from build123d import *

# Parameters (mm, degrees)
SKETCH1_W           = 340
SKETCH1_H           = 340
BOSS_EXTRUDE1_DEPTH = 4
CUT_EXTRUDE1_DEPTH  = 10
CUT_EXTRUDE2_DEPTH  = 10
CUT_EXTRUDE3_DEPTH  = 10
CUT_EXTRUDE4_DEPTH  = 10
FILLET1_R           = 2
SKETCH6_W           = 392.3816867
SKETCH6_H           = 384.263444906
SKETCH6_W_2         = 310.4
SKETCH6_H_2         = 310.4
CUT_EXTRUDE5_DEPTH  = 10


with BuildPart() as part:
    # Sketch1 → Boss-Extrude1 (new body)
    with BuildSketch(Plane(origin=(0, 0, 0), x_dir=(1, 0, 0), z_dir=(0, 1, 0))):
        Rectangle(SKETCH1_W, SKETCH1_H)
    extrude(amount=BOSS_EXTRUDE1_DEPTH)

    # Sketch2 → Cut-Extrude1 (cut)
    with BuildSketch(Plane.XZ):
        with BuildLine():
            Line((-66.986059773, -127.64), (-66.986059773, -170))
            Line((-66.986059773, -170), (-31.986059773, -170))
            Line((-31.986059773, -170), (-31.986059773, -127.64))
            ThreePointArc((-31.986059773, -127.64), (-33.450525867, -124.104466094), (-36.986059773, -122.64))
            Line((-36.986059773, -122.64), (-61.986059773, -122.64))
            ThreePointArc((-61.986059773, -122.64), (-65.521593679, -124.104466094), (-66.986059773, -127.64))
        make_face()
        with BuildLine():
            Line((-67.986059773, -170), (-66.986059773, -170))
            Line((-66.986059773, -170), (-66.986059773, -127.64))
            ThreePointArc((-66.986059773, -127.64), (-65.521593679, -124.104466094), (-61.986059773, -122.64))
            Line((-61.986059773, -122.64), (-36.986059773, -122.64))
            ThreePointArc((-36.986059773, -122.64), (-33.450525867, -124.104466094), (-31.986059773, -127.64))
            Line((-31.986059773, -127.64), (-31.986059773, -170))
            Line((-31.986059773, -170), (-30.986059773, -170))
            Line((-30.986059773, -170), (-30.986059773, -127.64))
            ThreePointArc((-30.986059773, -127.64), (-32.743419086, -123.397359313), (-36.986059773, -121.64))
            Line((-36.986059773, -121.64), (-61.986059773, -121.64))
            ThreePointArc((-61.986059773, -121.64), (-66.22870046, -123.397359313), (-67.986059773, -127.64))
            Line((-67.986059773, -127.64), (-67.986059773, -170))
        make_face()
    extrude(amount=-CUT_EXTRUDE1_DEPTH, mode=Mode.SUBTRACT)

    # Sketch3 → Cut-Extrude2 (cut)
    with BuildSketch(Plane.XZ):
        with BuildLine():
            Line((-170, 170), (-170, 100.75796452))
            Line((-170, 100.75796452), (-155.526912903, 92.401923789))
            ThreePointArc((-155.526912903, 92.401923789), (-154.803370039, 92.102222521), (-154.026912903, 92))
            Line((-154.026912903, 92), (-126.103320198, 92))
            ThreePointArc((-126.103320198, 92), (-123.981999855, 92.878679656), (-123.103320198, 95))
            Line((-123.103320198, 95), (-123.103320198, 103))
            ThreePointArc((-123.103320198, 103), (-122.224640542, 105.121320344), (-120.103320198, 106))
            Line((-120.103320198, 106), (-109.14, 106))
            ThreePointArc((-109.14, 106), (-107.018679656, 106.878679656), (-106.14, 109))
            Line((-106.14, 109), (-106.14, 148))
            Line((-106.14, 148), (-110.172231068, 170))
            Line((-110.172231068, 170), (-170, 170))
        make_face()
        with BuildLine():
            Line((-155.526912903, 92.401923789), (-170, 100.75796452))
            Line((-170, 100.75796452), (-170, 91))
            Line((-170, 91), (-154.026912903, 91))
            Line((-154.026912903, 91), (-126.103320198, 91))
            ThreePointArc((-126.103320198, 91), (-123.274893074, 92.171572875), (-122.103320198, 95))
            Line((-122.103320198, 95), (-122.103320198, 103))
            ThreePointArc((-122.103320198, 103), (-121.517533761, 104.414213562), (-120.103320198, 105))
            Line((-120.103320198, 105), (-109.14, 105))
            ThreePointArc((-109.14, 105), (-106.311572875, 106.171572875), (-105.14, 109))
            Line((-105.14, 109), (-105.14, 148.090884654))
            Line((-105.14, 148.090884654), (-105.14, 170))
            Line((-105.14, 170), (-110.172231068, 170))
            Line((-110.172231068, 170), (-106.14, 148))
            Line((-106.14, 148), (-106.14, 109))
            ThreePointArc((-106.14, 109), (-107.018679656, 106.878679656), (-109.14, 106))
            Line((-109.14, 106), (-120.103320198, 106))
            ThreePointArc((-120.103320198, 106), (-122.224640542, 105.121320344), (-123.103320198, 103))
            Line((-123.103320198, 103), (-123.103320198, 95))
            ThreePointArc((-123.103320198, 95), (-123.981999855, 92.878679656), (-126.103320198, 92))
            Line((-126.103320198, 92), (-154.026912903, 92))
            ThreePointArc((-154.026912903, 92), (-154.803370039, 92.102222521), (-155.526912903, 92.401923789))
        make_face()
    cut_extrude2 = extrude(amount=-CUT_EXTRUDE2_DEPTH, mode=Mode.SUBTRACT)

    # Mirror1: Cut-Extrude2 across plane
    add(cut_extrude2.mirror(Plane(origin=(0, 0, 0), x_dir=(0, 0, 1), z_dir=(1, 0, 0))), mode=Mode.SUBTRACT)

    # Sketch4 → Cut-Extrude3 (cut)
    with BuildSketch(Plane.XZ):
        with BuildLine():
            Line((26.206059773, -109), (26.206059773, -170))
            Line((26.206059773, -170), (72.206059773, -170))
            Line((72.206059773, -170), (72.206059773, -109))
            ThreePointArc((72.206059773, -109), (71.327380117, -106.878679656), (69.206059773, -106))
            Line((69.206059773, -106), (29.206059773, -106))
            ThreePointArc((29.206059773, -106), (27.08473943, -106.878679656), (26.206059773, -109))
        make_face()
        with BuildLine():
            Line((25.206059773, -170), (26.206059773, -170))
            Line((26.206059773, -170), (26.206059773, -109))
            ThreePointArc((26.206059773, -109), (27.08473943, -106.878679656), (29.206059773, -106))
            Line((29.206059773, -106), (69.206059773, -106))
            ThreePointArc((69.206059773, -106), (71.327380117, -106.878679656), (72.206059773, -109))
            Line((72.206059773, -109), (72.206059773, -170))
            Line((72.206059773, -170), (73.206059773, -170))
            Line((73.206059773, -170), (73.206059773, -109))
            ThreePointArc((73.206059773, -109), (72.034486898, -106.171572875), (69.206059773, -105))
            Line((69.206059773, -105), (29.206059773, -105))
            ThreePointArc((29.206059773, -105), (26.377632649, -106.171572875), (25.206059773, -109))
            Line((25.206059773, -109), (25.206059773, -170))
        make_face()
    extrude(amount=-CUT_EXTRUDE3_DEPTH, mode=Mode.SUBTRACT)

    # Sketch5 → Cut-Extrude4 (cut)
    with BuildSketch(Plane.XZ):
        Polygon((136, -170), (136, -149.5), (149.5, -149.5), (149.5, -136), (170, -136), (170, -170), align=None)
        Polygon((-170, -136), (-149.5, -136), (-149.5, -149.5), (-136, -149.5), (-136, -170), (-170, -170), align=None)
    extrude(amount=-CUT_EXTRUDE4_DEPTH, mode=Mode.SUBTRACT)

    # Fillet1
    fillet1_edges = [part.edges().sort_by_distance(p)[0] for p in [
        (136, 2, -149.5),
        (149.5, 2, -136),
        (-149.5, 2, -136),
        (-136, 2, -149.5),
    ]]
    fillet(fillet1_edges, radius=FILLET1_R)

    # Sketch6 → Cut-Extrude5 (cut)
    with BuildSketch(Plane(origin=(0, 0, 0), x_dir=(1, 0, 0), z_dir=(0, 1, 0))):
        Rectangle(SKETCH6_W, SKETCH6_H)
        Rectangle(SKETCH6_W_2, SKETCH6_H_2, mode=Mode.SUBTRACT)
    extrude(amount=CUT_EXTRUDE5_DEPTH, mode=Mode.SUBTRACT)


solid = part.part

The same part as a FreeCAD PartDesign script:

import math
import FreeCAD as App
import Part
import Sketcher
Q = App.Units.Quantity


def edges_at(feature, points):
    """Names of the edges that pass closest to the given points."""
    edges = feature.Shape.Edges
    near = lambda p: min(range(len(edges)), key=lambda i: edges[i].distToShape(Part.Vertex(*p))[0])
    return sorted({f"Edge{near(p) + 1}" for p in points})

doc = App.newDocument("Part")
body = doc.addObject("PartDesign::Body", "Body")

# Sketch on XZ plane
sketch1 = doc.addObject("Sketcher::SketchObject", "Sketch")
body.addObject(sketch1)
sketch1.AttachmentSupport = (doc.XZ_Plane, [""])
sketch1.MapMode = "FlatFace"
sketch1.addGeometry(Part.LineSegment(App.Vector(-170, -170, 0), App.Vector(-170, 170, 0)), False)
sketch1.addGeometry(Part.LineSegment(App.Vector(-170, 170, 0), App.Vector(170, 170, 0)), False)
sketch1.addGeometry(Part.LineSegment(App.Vector(170, 170, 0), App.Vector(170, -170, 0)), False)
sketch1.addGeometry(Part.LineSegment(App.Vector(170, -170, 0), App.Vector(-170, -170, 0)), False)
sketch1.addConstraint(Sketcher.Constraint("Coincident", 0, 2, 1, 1))
sketch1.addConstraint(Sketcher.Constraint("Coincident", 1, 2, 2, 1))
sketch1.addConstraint(Sketcher.Constraint("Coincident", 2, 2, 3, 1))
sketch1.addConstraint(Sketcher.Constraint("Coincident", 3, 2, 0, 1))
sketch1.addConstraint(Sketcher.Constraint("Vertical", 0))
sketch1.addConstraint(Sketcher.Constraint("Horizontal", 1))
sketch1.addConstraint(Sketcher.Constraint("Vertical", 2))
sketch1.addConstraint(Sketcher.Constraint("Horizontal", 3))
sketch1.addConstraint(Sketcher.Constraint("Symmetric", 0, 2, 2, 2, -1, 1))
sketch1.addConstraint(Sketcher.Constraint("Equal", 3, 0))
sketch1.addConstraint(Sketcher.Constraint("DistanceX", 1, 1, 1, 2, Q("340 mm")))
pad1 = doc.addObject("PartDesign::Pad", "Pad")
body.addObject(pad1)
pad1.Profile = sketch1
pad1.Length = 4
pad1.Reversed = True

# Sketch on XZ plane
sketch2 = doc.addObject("Sketcher::SketchObject", "Sketch001")
body.addObject(sketch2)
sketch2.AttachmentSupport = (doc.XZ_Plane, [""])
sketch2.MapMode = "FlatFace"
sketch2.addGeometry(Part.LineSegment(App.Vector(-30.98606, -170, 0), App.Vector(-30.98606, -127.64, 0)), False)
sketch2.addGeometry(Part.ArcOfCircle(Part.Circle(App.Vector(-36.98606, -127.64, 0), App.Vector(0, 0, 1), 6), math.radians(0), math.radians(90)), False)
sketch2.addGeometry(Part.LineSegment(App.Vector(-36.98606, -121.64, 0), App.Vector(-61.98606, -121.64, 0)), False)
sketch2.addGeometry(Part.ArcOfCircle(Part.Circle(App.Vector(-61.98606, -127.64, 0), App.Vector(0, 0, 1), 6), math.radians(90), math.radians(180)), False)
sketch2.addGeometry(Part.LineSegment(App.Vector(-67.98606, -127.64, 0), App.Vector(-67.98606, -170, 0)), False)
sketch2.addGeometry(Part.LineSegment(App.Vector(-67.98606, -170, 0), App.Vector(-30.98606, -170, 0)), False)
sketch2.addConstraint(Sketcher.Constraint("Tangent", 0, 2, 1, 1))
sketch2.addConstraint(Sketcher.Constraint("Tangent", 1, 2, 2, 1))
sketch2.addConstraint(Sketcher.Constraint("Tangent", 2, 2, 3, 1))
sketch2.addConstraint(Sketcher.Constraint("Tangent", 3, 2, 4, 1))
sketch2.addConstraint(Sketcher.Constraint("Coincident", 4, 2, 5, 1))
sketch2.addConstraint(Sketcher.Constraint("Coincident", 5, 2, 0, 1))
sketch2.addConstraint(Sketcher.Constraint("Vertical", 0))
sketch2.addConstraint(Sketcher.Constraint("Horizontal", 2))
sketch2.addConstraint(Sketcher.Constraint("Vertical", 4))
sketch2.addConstraint(Sketcher.Constraint("Horizontal", 5))
sketch2.addConstraint(Sketcher.Constraint("Equal", 1, 3))
sketch2.addConstraint(Sketcher.Constraint("Radius", 1, Q("6 mm")))
sketch2.addConstraint(Sketcher.Constraint("DistanceX", 2, 2, 2, 1, Q("25 mm")))
sketch2.addConstraint(Sketcher.Constraint("DistanceY", 4, 2, -1, 1, Q("170 mm")))
sketch2.addConstraint(Sketcher.Constraint("DistanceY", 0, 1, 0, 2, Q("42.36 mm")))
sketch2.addConstraint(Sketcher.Constraint("DistanceX", 1, 3, -1, 1, Q("36.98606 mm")))
pocket1 = doc.addObject("PartDesign::Pocket", "Pocket")
body.addObject(pocket1)
pocket1.Profile = sketch2
pocket1.Length = 10

# Sketch on XZ plane
sketch3 = doc.addObject("Sketcher::SketchObject", "Sketch002")
body.addObject(sketch3)
sketch3.AttachmentSupport = (doc.XZ_Plane, [""])
sketch3.MapMode = "FlatFace"
sketch3.addGeometry(Part.LineSegment(App.Vector(-170, 170, 0), App.Vector(-170, 91, 0)), False)
sketch3.addGeometry(Part.LineSegment(App.Vector(-170, 91, 0), App.Vector(-126.10332, 91, 0)), False)
sketch3.addGeometry(Part.ArcOfCircle(Part.Circle(App.Vector(-126.10332, 95, 0), App.Vector(0, 0, 1), 4), math.radians(-90), math.radians(0)), False)
sketch3.addGeometry(Part.LineSegment(App.Vector(-122.10332, 95, 0), App.Vector(-122.10332, 103, 0)), False)
sketch3.addGeometry(Part.ArcOfCircle(Part.Circle(App.Vector(-120.10332, 103, 0), App.Vector(0, 0, 1), 2), math.radians(90), math.radians(180)), False)
sketch3.addGeometry(Part.LineSegment(App.Vector(-120.10332, 105, 0), App.Vector(-109.14, 105, 0)), False)
sketch3.addGeometry(Part.ArcOfCircle(Part.Circle(App.Vector(-109.14, 109, 0), App.Vector(0, 0, 1), 4), math.radians(-90), math.radians(0)), False)
sketch3.addGeometry(Part.LineSegment(App.Vector(-105.14, 109, 0), App.Vector(-105.14, 170, 0)), False)
sketch3.addGeometry(Part.LineSegment(App.Vector(-105.14, 170, 0), App.Vector(-170, 170, 0)), False)
sketch3.addConstraint(Sketcher.Constraint("Coincident", 0, 2, 1, 1))
sketch3.addConstraint(Sketcher.Constraint("Tangent", 1, 2, 2, 1))
sketch3.addConstraint(Sketcher.Constraint("Tangent", 2, 2, 3, 1))
sketch3.addConstraint(Sketcher.Constraint("Tangent", 3, 2, 4, 2))
sketch3.addConstraint(Sketcher.Constraint("Tangent", 4, 1, 5, 1))
sketch3.addConstraint(Sketcher.Constraint("Tangent", 5, 2, 6, 1))
sketch3.addConstraint(Sketcher.Constraint("Tangent", 6, 2, 7, 1))
sketch3.addConstraint(Sketcher.Constraint("Coincident", 7, 2, 8, 1))
sketch3.addConstraint(Sketcher.Constraint("Coincident", 8, 2, 0, 1))
sketch3.addConstraint(Sketcher.Constraint("Vertical", 0))
sketch3.addConstraint(Sketcher.Constraint("Horizontal", 1))
sketch3.addConstraint(Sketcher.Constraint("Vertical", 3))
sketch3.addConstraint(Sketcher.Constraint("Horizontal", 5))
sketch3.addConstraint(Sketcher.Constraint("Vertical", 7))
sketch3.addConstraint(Sketcher.Constraint("Horizontal", 8))
sketch3.addConstraint(Sketcher.Constraint("Equal", 2, 6))
sketch3.addConstraint(Sketcher.Constraint("Radius", 2, Q("4 mm")))
sketch3.addConstraint(Sketcher.Constraint("Radius", 4, Q("2 mm")))
sketch3.addConstraint(Sketcher.Constraint("DistanceY", 0, 2, 0, 1, Q("79 mm")))
sketch3.addConstraint(Sketcher.Constraint("DistanceY", 3, 1, 3, 2, Q("8 mm")))
sketch3.addConstraint(Sketcher.Constraint("DistanceY", -1, 1, 2, 3, Q("95 mm")))
sketch3.addConstraint(Sketcher.Constraint("DistanceX", 0, 2, -1, 1, Q("170 mm")))
sketch3.addConstraint(Sketcher.Constraint("DistanceX", 8, 2, 8, 1, Q("64.86 mm")))
sketch3.addConstraint(Sketcher.Constraint("DistanceX", 1, 1, 1, 2, Q("43.89668 mm")))
pocket2 = doc.addObject("PartDesign::Pocket", "Pocket001")
body.addObject(pocket2)
pocket2.Profile = sketch3
pocket2.Length = 10
doc.recompute()

mirrored = doc.addObject("PartDesign::Mirrored", "Mirrored")
body.addObject(mirrored)
mirrored.Originals = [pocket2]
mirrored.MirrorPlane = (doc.YZ_Plane, [""])
body.Tip = mirrored

# Sketch on XZ plane
sketch4 = doc.addObject("Sketcher::SketchObject", "Sketch003")
body.addObject(sketch4)
sketch4.AttachmentSupport = (doc.XZ_Plane, [""])
sketch4.MapMode = "FlatFace"
sketch4.addGeometry(Part.LineSegment(App.Vector(73.20606, -170, 0), App.Vector(73.20606, -109, 0)), False)
sketch4.addGeometry(Part.ArcOfCircle(Part.Circle(App.Vector(69.20606, -109, 0), App.Vector(0, 0, 1), 4), math.radians(0), math.radians(90)), False)
sketch4.addGeometry(Part.LineSegment(App.Vector(69.20606, -105, 0), App.Vector(29.20606, -105, 0)), False)
sketch4.addGeometry(Part.ArcOfCircle(Part.Circle(App.Vector(29.20606, -109, 0), App.Vector(0, 0, 1), 4), math.radians(90), math.radians(180)), False)
sketch4.addGeometry(Part.LineSegment(App.Vector(25.20606, -109, 0), App.Vector(25.20606, -170, 0)), False)
sketch4.addGeometry(Part.LineSegment(App.Vector(25.20606, -170, 0), App.Vector(73.20606, -170, 0)), False)
sketch4.addConstraint(Sketcher.Constraint("Tangent", 0, 2, 1, 1))
sketch4.addConstraint(Sketcher.Constraint("Tangent", 1, 2, 2, 1))
sketch4.addConstraint(Sketcher.Constraint("Tangent", 2, 2, 3, 1))
sketch4.addConstraint(Sketcher.Constraint("Tangent", 3, 2, 4, 1))
sketch4.addConstraint(Sketcher.Constraint("Coincident", 4, 2, 5, 1))
sketch4.addConstraint(Sketcher.Constraint("Coincident", 5, 2, 0, 1))
sketch4.addConstraint(Sketcher.Constraint("Vertical", 0))
sketch4.addConstraint(Sketcher.Constraint("Horizontal", 2))
sketch4.addConstraint(Sketcher.Constraint("Vertical", 4))
sketch4.addConstraint(Sketcher.Constraint("Horizontal", 5))
sketch4.addConstraint(Sketcher.Constraint("Equal", 1, 3))
sketch4.addConstraint(Sketcher.Constraint("Radius", 1, Q("4 mm")))
sketch4.addConstraint(Sketcher.Constraint("DistanceX", 2, 2, 2, 1, Q("40 mm")))
sketch4.addConstraint(Sketcher.Constraint("DistanceY", 0, 1, 0, 2, Q("61 mm")))
sketch4.addConstraint(Sketcher.Constraint("DistanceY", 1, 3, -1, 1, Q("109 mm")))
sketch4.addConstraint(Sketcher.Constraint("DistanceX", -1, 1, 1, 3, Q("69.20606 mm")))
pocket3 = doc.addObject("PartDesign::Pocket", "Pocket002")
body.addObject(pocket3)
pocket3.Profile = sketch4
pocket3.Length = 10

# Sketch on XZ plane
sketch5 = doc.addObject("Sketcher::SketchObject", "Sketch004")
body.addObject(sketch5)
sketch5.AttachmentSupport = (doc.XZ_Plane, [""])
sketch5.MapMode = "FlatFace"
sketch5.addGeometry(Part.LineSegment(App.Vector(136, -149.5, 0), App.Vector(136, -170, 0)), False)
sketch5.addGeometry(Part.LineSegment(App.Vector(136, -170, 0), App.Vector(170, -170, 0)), False)
sketch5.addGeometry(Part.LineSegment(App.Vector(170, -170, 0), App.Vector(170, -136, 0)), False)
sketch5.addGeometry(Part.LineSegment(App.Vector(170, -136, 0), App.Vector(149.5, -136, 0)), False)
sketch5.addGeometry(Part.LineSegment(App.Vector(149.5, -136, 0), App.Vector(149.5, -149.5, 0)), False)
sketch5.addGeometry(Part.LineSegment(App.Vector(149.5, -149.5, 0), App.Vector(136, -149.5, 0)), False)
sketch5.addGeometry(Part.LineSegment(App.Vector(-149.5, -136, 0), App.Vector(-170, -136, 0)), False)
sketch5.addGeometry(Part.LineSegment(App.Vector(-170, -136, 0), App.Vector(-170, -170, 0)), False)
sketch5.addGeometry(Part.LineSegment(App.Vector(-170, -170, 0), App.Vector(-136, -170, 0)), False)
sketch5.addGeometry(Part.LineSegment(App.Vector(-136, -170, 0), App.Vector(-136, -149.5, 0)), False)
sketch5.addGeometry(Part.LineSegment(App.Vector(-136, -149.5, 0), App.Vector(-149.5, -149.5, 0)), False)
sketch5.addGeometry(Part.LineSegment(App.Vector(-149.5, -149.5, 0), App.Vector(-149.5, -136, 0)), False)
sketch5.addConstraint(Sketcher.Constraint("Coincident", 0, 2, 1, 1))
sketch5.addConstraint(Sketcher.Constraint("Coincident", 1, 2, 2, 1))
sketch5.addConstraint(Sketcher.Constraint("Coincident", 2, 2, 3, 1))
sketch5.addConstraint(Sketcher.Constraint("Coincident", 3, 2, 4, 1))
sketch5.addConstraint(Sketcher.Constraint("Coincident", 4, 2, 5, 1))
sketch5.addConstraint(Sketcher.Constraint("Coincident", 5, 2, 0, 1))
sketch5.addConstraint(Sketcher.Constraint("Coincident", 6, 2, 7, 1))
sketch5.addConstraint(Sketcher.Constraint("Coincident", 7, 2, 8, 1))
sketch5.addConstraint(Sketcher.Constraint("Coincident", 8, 2, 9, 1))
sketch5.addConstraint(Sketcher.Constraint("Coincident", 9, 2, 10, 1))
sketch5.addConstraint(Sketcher.Constraint("Coincident", 10, 2, 11, 1))
sketch5.addConstraint(Sketcher.Constraint("Coincident", 11, 2, 6, 1))
sketch5.addConstraint(Sketcher.Constraint("Vertical", 0))
sketch5.addConstraint(Sketcher.Constraint("Horizontal", 1))
sketch5.addConstraint(Sketcher.Constraint("Vertical", 2))
sketch5.addConstraint(Sketcher.Constraint("Horizontal", 3))
sketch5.addConstraint(Sketcher.Constraint("Vertical", 4))
sketch5.addConstraint(Sketcher.Constraint("Horizontal", 5))
sketch5.addConstraint(Sketcher.Constraint("Horizontal", 6))
sketch5.addConstraint(Sketcher.Constraint("Vertical", 7))
sketch5.addConstraint(Sketcher.Constraint("Horizontal", 8))
sketch5.addConstraint(Sketcher.Constraint("Vertical", 9))
sketch5.addConstraint(Sketcher.Constraint("Horizontal", 10))
sketch5.addConstraint(Sketcher.Constraint("Vertical", 11))
sketch5.addConstraint(Sketcher.Constraint("Symmetric", 2, 2, 6, 2, -2))
sketch5.addConstraint(Sketcher.Constraint("Symmetric", 0, 2, 8, 2, -2))
sketch5.addConstraint(Sketcher.Constraint("Symmetric", 4, 2, 10, 2, -2))
sketch5.addConstraint(Sketcher.Constraint("Equal", 6, 0))
sketch5.addConstraint(Sketcher.Constraint("Equal", 8, 2))
sketch5.addConstraint(Sketcher.Constraint("DistanceX", 1, 1, 1, 2, Q("34 mm")))
sketch5.addConstraint(Sketcher.Constraint("DistanceX", 3, 2, 3, 1, Q("20.5 mm")))
sketch5.addConstraint(Sketcher.Constraint("DistanceX", -1, 1, 0, 2, Q("136 mm")))
sketch5.addConstraint(Sketcher.Constraint("DistanceY", 0, 2, -1, 1, Q("170 mm")))
pocket4 = doc.addObject("PartDesign::Pocket", "Pocket003")
body.addObject(pocket4)
pocket4.Profile = sketch5
pocket4.Length = 10
doc.recompute()

fillet = doc.addObject("PartDesign::Fillet", "Fillet")
body.addObject(fillet)
fillet.Base = (pocket4, edges_at(pocket4, [
    (136, 2, -149.5),
    (149.5, 2, -136),
    (-149.5, 2, -136),
    (-136, 2, -149.5),
]))
fillet.Radius = 2

# Sketch on XZ plane
sketch6 = doc.addObject("Sketcher::SketchObject", "Sketch005")
body.addObject(sketch6)
sketch6.AttachmentSupport = (doc.XZ_Plane, [""])
sketch6.MapMode = "FlatFace"
sketch6.addGeometry(Part.LineSegment(App.Vector(-196.190843, -192.131722, 0), App.Vector(-196.190843, 192.131722, 0)), False)
sketch6.addGeometry(Part.LineSegment(App.Vector(-196.190843, 192.131722, 0), App.Vector(196.190843, 192.131722, 0)), False)
sketch6.addGeometry(Part.LineSegment(App.Vector(196.190843, 192.131722, 0), App.Vector(196.190843, -192.131722, 0)), False)
sketch6.addGeometry(Part.LineSegment(App.Vector(196.190843, -192.131722, 0), App.Vector(-196.190843, -192.131722, 0)), False)
sketch6.addGeometry(Part.LineSegment(App.Vector(155.2, 155.2, 0), App.Vector(-155.2, 155.2, 0)), False)
sketch6.addGeometry(Part.LineSegment(App.Vector(-155.2, 155.2, 0), App.Vector(-155.2, -155.2, 0)), False)
sketch6.addGeometry(Part.LineSegment(App.Vector(-155.2, -155.2, 0), App.Vector(155.2, -155.2, 0)), False)
sketch6.addGeometry(Part.LineSegment(App.Vector(155.2, -155.2, 0), App.Vector(155.2, 155.2, 0)), False)
sketch6.addConstraint(Sketcher.Constraint("Coincident", 0, 2, 1, 1))
sketch6.addConstraint(Sketcher.Constraint("Coincident", 1, 2, 2, 1))
sketch6.addConstraint(Sketcher.Constraint("Coincident", 2, 2, 3, 1))
sketch6.addConstraint(Sketcher.Constraint("Coincident", 3, 2, 0, 1))
sketch6.addConstraint(Sketcher.Constraint("Coincident", 4, 2, 5, 1))
sketch6.addConstraint(Sketcher.Constraint("Coincident", 5, 2, 6, 1))
sketch6.addConstraint(Sketcher.Constraint("Coincident", 6, 2, 7, 1))
sketch6.addConstraint(Sketcher.Constraint("Coincident", 7, 2, 4, 1))
sketch6.addConstraint(Sketcher.Constraint("Vertical", 0))
sketch6.addConstraint(Sketcher.Constraint("Horizontal", 1))
sketch6.addConstraint(Sketcher.Constraint("Vertical", 2))
sketch6.addConstraint(Sketcher.Constraint("Horizontal", 3))
sketch6.addConstraint(Sketcher.Constraint("Horizontal", 4))
sketch6.addConstraint(Sketcher.Constraint("Vertical", 5))
sketch6.addConstraint(Sketcher.Constraint("Horizontal", 6))
sketch6.addConstraint(Sketcher.Constraint("Vertical", 7))
sketch6.addConstraint(Sketcher.Constraint("Symmetric", 0, 2, 2, 2, -1, 1))
sketch6.addConstraint(Sketcher.Constraint("Symmetric", 4, 2, 6, 2, -1, 1))
sketch6.addConstraint(Sketcher.Constraint("Equal", 6, 5))
sketch6.addConstraint(Sketcher.Constraint("DistanceX", 4, 2, 4, 1, Q("310.4 mm")))
sketch6.addConstraint(Sketcher.Constraint("DistanceX", 1, 1, 1, 2, Q("392.381687 mm")))
sketch6.addConstraint(Sketcher.Constraint("DistanceY", 0, 1, 0, 2, Q("384.263445 mm")))
pocket5 = doc.addObject("PartDesign::Pocket", "Pocket004")
body.addObject(pocket5)
pocket5.Profile = sketch6
pocket5.Length = 10

doc.recompute()
